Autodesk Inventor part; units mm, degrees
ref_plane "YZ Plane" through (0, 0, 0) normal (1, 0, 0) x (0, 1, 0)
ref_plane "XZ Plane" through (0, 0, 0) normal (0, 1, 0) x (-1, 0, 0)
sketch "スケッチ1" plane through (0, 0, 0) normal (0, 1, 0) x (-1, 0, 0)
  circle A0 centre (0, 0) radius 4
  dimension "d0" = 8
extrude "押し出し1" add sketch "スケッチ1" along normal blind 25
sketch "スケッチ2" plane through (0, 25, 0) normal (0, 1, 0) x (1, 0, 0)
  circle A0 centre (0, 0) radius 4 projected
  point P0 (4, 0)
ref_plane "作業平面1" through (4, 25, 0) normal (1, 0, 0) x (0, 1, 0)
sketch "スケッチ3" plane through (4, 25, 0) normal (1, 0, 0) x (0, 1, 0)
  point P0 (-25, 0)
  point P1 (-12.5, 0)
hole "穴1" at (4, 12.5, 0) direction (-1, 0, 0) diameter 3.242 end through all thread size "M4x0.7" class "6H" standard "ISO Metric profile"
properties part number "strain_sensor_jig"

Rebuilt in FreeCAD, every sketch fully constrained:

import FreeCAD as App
import Part
import Sketcher

doc = App.newDocument("Part")
body = doc.addObject("PartDesign::Body", "Body")

# Sketch on XZ plane
sketch1 = body.newObject("Sketcher::SketchObject", "Sketch")
sketch1.AttachmentSupport = (doc.getObject("XZ_Plane"), [""])
sketch1.MapMode = "FlatFace"
sketch1.addGeometry(Part.Circle(App.Vector(0, 0, 0), App.Vector(0, 0, 1), 4), False)
sketch1.addConstraint([
    Sketcher.Constraint("Coincident", 0, 3, -1, 1),
    Sketcher.Constraint("Diameter", 0, 8.0),
])
pad1 = body.newObject("PartDesign::Pad", "Pad")
pad1.Profile = sketch1
pad1.Length = 25
pad1.Reversed = True

# Sketch on YZ plane
sketch2 = body.newObject("Sketcher::SketchObject", "Sketch001")
sketch2.AttachmentSupport = (doc.getObject("YZ_Plane"), [""])
sketch2.MapMode = "FlatFace"
sketch2.AttachmentOffset = App.Placement(App.Vector(0, 0, 4), App.Rotation())
sketch2.addGeometry(Part.Circle(App.Vector(12.5, 0, 0), App.Vector(0, 0, 1), 1.621), False)
sketch2.addConstraint([
    Sketcher.Constraint("PointOnObject", 0, 3, -1),
    Sketcher.Constraint("Diameter", 0, 3.242),
    Sketcher.Constraint("DistanceX", -1, 1, 0, 3, 12.5),
])
doc.recompute()
hole = body.newObject("PartDesign::Hole", "Hole")
hole.Profile = sketch2
hole.ThreadType = "None"
hole.Diameter = 3.242
hole.DepthType = "ThroughAll"

doc.recompute()
